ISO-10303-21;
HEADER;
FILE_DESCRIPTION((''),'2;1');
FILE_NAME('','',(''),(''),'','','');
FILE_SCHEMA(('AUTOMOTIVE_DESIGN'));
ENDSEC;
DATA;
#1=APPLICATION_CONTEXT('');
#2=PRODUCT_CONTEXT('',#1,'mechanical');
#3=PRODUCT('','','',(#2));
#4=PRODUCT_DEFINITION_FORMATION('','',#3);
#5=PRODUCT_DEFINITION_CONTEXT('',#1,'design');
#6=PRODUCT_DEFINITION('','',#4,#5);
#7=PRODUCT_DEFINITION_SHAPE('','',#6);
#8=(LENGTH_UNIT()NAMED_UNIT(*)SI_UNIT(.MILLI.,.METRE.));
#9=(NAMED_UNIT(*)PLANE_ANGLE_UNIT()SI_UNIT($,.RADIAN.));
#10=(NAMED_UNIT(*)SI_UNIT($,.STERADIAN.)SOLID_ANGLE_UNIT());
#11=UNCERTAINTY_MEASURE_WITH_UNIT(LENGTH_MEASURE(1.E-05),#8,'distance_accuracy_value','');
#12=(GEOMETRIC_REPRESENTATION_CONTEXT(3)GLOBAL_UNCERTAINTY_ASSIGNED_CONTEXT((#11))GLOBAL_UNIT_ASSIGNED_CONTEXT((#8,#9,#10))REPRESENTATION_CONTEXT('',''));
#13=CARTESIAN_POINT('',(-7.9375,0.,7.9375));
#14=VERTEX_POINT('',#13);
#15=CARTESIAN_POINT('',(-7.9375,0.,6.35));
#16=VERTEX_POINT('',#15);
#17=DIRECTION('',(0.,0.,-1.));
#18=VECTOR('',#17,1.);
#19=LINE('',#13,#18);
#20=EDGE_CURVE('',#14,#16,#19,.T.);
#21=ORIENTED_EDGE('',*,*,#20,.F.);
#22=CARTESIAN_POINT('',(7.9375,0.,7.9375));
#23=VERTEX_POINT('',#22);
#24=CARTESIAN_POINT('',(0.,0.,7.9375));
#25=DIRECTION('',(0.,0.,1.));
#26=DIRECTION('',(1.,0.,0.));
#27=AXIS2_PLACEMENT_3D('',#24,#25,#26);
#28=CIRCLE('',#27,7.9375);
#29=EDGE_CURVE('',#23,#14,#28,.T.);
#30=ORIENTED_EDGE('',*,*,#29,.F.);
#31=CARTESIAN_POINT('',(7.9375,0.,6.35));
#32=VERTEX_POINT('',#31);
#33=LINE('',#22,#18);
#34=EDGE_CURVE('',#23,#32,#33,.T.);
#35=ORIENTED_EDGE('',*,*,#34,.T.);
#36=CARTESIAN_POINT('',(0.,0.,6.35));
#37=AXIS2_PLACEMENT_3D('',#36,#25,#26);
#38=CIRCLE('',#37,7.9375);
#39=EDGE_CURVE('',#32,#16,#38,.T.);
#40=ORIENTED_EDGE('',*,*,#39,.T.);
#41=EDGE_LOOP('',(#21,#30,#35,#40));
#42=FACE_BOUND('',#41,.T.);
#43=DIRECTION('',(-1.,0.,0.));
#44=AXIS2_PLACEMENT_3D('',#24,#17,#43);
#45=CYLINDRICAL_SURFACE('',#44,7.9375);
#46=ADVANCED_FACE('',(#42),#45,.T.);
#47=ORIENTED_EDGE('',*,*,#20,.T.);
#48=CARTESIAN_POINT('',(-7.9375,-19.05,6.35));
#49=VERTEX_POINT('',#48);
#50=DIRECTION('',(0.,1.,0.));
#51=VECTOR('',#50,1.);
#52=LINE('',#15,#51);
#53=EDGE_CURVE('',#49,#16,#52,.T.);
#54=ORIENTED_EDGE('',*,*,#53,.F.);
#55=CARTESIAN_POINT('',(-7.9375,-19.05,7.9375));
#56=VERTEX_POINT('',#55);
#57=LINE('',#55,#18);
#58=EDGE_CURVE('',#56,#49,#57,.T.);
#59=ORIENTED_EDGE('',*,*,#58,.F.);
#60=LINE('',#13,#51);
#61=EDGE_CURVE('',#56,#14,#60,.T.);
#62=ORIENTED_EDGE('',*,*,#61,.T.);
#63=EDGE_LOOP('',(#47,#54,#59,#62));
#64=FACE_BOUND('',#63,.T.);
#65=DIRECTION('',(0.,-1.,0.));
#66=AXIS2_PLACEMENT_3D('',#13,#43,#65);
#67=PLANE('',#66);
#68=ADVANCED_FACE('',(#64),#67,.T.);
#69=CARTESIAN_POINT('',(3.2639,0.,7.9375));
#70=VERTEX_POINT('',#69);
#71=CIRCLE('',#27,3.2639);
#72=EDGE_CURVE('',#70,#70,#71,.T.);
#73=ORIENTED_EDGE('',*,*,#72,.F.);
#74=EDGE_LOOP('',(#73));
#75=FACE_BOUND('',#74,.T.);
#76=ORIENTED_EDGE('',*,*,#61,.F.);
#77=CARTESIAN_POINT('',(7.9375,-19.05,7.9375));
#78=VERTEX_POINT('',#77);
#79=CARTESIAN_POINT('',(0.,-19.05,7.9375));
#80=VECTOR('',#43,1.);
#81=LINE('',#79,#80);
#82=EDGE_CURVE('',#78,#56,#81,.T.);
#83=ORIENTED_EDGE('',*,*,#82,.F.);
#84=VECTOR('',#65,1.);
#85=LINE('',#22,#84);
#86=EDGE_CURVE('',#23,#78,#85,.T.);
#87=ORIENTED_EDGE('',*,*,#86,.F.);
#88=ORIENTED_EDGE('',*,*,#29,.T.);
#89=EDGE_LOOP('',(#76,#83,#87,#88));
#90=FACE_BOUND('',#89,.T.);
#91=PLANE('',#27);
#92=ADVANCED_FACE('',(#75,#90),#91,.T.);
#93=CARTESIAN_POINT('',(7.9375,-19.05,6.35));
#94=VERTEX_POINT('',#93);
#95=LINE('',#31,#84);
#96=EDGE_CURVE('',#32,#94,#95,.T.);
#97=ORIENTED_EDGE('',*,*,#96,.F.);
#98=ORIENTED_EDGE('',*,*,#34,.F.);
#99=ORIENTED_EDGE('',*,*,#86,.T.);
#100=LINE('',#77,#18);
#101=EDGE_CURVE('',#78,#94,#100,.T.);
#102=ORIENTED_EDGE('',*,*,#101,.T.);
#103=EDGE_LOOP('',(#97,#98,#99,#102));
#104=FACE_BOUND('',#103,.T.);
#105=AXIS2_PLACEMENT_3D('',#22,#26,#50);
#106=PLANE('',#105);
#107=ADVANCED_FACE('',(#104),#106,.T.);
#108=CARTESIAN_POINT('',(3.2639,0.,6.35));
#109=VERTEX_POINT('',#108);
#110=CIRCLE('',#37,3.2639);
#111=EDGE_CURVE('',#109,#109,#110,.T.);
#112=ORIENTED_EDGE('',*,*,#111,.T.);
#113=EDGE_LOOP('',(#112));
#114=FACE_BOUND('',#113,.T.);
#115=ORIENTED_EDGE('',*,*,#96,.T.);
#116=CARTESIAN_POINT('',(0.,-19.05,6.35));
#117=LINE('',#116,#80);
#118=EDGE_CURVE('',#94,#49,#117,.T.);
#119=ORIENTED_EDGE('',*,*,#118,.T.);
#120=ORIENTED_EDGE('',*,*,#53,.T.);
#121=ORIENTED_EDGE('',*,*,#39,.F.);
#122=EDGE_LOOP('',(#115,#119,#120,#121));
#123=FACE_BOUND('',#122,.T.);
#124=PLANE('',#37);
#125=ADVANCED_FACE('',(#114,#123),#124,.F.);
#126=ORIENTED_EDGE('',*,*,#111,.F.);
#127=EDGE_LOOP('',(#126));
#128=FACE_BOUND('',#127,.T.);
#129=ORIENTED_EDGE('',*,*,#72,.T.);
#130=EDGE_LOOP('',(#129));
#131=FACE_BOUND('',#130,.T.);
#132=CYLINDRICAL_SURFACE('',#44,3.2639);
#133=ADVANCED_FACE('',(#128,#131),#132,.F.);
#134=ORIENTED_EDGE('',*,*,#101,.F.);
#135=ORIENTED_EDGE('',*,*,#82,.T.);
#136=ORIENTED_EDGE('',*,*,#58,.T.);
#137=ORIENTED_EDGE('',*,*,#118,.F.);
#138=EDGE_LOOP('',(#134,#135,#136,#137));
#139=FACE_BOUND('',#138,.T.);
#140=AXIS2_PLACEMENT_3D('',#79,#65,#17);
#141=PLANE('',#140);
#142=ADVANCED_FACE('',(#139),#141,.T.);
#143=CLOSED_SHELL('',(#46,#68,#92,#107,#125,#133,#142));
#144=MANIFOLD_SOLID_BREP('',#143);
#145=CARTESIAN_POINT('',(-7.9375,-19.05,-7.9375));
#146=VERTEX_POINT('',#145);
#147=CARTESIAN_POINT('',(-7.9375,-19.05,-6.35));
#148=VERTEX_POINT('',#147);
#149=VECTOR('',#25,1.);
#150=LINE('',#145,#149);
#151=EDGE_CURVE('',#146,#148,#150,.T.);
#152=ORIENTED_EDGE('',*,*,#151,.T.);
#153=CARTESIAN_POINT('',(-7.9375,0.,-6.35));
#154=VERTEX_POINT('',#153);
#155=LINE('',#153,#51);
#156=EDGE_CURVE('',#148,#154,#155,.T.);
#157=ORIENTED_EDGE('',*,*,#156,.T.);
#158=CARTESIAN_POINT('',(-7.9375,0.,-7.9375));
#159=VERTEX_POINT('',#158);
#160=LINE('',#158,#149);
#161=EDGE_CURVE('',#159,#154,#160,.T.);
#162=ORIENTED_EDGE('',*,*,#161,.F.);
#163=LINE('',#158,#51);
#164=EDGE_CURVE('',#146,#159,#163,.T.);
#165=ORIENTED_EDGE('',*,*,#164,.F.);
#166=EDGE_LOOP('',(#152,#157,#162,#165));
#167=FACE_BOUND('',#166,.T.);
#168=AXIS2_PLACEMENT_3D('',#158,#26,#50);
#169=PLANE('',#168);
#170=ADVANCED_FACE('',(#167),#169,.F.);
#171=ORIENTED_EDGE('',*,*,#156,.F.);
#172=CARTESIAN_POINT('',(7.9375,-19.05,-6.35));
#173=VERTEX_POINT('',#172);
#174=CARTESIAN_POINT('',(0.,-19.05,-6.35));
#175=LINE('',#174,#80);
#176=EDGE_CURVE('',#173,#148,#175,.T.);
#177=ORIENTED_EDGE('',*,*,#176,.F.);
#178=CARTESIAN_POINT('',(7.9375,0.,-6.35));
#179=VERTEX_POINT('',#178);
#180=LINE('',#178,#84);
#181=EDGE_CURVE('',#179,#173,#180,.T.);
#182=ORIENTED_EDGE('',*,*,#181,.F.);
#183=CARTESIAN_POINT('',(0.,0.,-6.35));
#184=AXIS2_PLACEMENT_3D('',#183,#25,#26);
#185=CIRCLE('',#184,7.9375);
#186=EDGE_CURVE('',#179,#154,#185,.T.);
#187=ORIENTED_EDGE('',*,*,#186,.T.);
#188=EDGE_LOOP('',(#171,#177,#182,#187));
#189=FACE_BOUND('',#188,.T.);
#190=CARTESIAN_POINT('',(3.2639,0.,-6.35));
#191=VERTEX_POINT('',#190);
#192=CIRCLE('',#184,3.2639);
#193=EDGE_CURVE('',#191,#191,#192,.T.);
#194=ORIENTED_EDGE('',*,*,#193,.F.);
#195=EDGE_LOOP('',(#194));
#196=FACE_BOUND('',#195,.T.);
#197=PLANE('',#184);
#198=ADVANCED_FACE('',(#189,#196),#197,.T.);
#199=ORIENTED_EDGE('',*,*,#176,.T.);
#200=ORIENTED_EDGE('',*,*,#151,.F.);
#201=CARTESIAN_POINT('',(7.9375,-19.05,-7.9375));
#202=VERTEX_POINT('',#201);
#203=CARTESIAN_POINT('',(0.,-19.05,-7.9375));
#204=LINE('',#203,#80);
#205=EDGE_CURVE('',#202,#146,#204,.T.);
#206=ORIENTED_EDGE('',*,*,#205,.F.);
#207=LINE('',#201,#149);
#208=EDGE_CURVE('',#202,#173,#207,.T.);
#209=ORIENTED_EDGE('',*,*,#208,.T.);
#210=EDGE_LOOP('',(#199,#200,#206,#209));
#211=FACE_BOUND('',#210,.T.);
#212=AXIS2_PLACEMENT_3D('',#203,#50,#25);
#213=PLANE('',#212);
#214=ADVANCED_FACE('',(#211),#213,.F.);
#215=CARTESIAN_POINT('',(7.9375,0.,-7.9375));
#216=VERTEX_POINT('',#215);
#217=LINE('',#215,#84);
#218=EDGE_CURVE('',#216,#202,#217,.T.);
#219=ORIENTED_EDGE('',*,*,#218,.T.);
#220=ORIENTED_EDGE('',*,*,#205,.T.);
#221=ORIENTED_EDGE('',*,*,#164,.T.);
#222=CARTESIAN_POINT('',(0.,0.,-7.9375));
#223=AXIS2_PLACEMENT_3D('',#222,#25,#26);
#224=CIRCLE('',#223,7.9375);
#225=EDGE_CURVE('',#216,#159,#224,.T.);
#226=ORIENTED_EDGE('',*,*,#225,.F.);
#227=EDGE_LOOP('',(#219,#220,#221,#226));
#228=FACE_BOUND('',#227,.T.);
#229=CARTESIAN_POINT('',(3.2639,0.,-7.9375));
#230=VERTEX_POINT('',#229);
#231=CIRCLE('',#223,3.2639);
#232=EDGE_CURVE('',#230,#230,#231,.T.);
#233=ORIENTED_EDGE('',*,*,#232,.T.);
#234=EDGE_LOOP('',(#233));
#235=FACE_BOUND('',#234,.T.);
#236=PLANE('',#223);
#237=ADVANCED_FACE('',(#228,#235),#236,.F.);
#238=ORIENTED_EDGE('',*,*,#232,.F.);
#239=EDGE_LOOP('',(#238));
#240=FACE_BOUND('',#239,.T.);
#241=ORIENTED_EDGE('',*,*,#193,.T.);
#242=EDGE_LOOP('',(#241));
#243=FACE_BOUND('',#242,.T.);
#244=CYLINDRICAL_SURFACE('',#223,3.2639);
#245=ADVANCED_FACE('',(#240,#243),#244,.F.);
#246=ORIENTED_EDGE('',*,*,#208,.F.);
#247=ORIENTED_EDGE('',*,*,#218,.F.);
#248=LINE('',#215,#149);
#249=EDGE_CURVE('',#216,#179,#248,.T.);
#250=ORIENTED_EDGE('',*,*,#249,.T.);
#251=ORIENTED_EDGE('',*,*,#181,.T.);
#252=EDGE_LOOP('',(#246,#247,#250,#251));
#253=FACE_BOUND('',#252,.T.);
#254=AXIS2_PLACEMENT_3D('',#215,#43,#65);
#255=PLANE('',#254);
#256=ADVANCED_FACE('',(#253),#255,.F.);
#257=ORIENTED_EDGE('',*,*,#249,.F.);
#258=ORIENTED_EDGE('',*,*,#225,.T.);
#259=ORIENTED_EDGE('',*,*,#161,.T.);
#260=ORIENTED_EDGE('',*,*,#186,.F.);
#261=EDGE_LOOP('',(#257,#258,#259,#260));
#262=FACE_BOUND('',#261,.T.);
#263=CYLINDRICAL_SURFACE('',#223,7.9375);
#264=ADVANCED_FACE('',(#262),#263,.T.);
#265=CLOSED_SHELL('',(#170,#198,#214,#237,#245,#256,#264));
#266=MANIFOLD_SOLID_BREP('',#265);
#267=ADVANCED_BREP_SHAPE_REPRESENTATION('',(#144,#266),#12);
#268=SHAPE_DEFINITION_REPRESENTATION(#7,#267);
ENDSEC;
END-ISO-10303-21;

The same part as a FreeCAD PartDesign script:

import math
import FreeCAD as App
import Part
import Sketcher

V = App.Vector
Q = App.Units.Quantity

doc = App.newDocument("Part")
body = doc.addObject("PartDesign::Body", "Body")

sketch1 = doc.addObject("Sketcher::SketchObject", "Sketch")
body.addObject(sketch1)
sketch1.AttachmentSupport = (doc.XY_Plane, [""])
sketch1.MapMode = "FlatFace"
sketch1.AttachmentOffset = App.Placement(V(0, 0, 0.25 * 25.4), App.Rotation())
sketch1.addGeometry([
    Part.ArcOfCircle(Part.Circle(V(0, 0, 0), V(0, 0, 1), 7.9), math.radians(0), math.radians(180)),
    Part.LineSegment(V(-7.9, 0, 0), V(-7.9, -19.1, 0)),
    Part.LineSegment(V(-7.9, -19.1, 0), V(7.9, -19.1, 0)),
    Part.LineSegment(V(7.9, -19.1, 0), V(7.9, 0, 0)),
    Part.Circle(V(0, 0, 0), V(0, 0, 1), 3.3),
], False)
sketch1.addConstraint([
    Sketcher.Constraint("Tangent", 0, 2, 1, 1),
    Sketcher.Constraint("Coincident", 1, 2, 2, 1),
    Sketcher.Constraint("Coincident", 2, 2, 3, 1),
    Sketcher.Constraint("Tangent", 3, 2, 0, 1),
    Sketcher.Constraint("Vertical", 1),
    Sketcher.Constraint("Horizontal", 2),
    Sketcher.Constraint("Vertical", 3),
    Sketcher.Constraint("Coincident", 0, 3, -1, 1),
    Sketcher.Constraint("Coincident", 4, 3, -1, 1),
    Sketcher.Constraint("Diameter", 4, Q("0.257 in")),
    Sketcher.Constraint("Radius", 0, Q("0.3125 in")),
    Sketcher.Constraint("DistanceY", 1, 2, 1, 1, Q("0.75 in")),
])
pad1 = doc.addObject("PartDesign::Pad", "Pad")
body.addObject(pad1)
pad1.Profile = sketch1
pad1.Length = Q("0.0625 in")
body2 = doc.addObject("PartDesign::Body", "Body001")

sketch2 = doc.addObject("Sketcher::SketchObject", "Sketch001")
body2.addObject(sketch2)
sketch2.AttachmentSupport = (doc.getObject("XY_Plane001"), [""])
sketch2.MapMode = "FlatFace"
sketch2.AttachmentOffset = App.Placement(V(0, 0, -0.25 * 25.4), App.Rotation())
sketch2.addGeometry([
    Part.ArcOfCircle(Part.Circle(V(0, 0, 0), V(0, 0, 1), 7.9), math.radians(0), math.radians(180)),
    Part.LineSegment(V(-7.9, 0, 0), V(-7.9, -19.1, 0)),
    Part.LineSegment(V(-7.9, -19.1, 0), V(7.9, -19.1, 0)),
    Part.LineSegment(V(7.9, -19.1, 0), V(7.9, 0, 0)),
    Part.Circle(V(0, 0, 0), V(0, 0, 1), 3.3),
], False)
sketch2.addConstraint([
    Sketcher.Constraint("Tangent", 0, 2, 1, 1),
    Sketcher.Constraint("Coincident", 1, 2, 2, 1),
    Sketcher.Constraint("Coincident", 2, 2, 3, 1),
    Sketcher.Constraint("Tangent", 3, 2, 0, 1),
    Sketcher.Constraint("Vertical", 1),
    Sketcher.Constraint("Horizontal", 2),
    Sketcher.Constraint("Vertical", 3),
    Sketcher.Constraint("Coincident", 0, 3, -1, 1),
    Sketcher.Constraint("Coincident", 4, 3, -1, 1),
    Sketcher.Constraint("Diameter", 4, Q("0.257 in")),
    Sketcher.Constraint("Radius", 0, Q("0.3125 in")),
    Sketcher.Constraint("DistanceY", 1, 2, 1, 1, Q("0.75 in")),
])
pad2 = doc.addObject("PartDesign::Pad", "Pad001")
body2.addObject(pad2)
pad2.Profile = sketch2
pad2.Length = Q("0.0625 in")
pad2.Reversed = True

doc.recompute()
